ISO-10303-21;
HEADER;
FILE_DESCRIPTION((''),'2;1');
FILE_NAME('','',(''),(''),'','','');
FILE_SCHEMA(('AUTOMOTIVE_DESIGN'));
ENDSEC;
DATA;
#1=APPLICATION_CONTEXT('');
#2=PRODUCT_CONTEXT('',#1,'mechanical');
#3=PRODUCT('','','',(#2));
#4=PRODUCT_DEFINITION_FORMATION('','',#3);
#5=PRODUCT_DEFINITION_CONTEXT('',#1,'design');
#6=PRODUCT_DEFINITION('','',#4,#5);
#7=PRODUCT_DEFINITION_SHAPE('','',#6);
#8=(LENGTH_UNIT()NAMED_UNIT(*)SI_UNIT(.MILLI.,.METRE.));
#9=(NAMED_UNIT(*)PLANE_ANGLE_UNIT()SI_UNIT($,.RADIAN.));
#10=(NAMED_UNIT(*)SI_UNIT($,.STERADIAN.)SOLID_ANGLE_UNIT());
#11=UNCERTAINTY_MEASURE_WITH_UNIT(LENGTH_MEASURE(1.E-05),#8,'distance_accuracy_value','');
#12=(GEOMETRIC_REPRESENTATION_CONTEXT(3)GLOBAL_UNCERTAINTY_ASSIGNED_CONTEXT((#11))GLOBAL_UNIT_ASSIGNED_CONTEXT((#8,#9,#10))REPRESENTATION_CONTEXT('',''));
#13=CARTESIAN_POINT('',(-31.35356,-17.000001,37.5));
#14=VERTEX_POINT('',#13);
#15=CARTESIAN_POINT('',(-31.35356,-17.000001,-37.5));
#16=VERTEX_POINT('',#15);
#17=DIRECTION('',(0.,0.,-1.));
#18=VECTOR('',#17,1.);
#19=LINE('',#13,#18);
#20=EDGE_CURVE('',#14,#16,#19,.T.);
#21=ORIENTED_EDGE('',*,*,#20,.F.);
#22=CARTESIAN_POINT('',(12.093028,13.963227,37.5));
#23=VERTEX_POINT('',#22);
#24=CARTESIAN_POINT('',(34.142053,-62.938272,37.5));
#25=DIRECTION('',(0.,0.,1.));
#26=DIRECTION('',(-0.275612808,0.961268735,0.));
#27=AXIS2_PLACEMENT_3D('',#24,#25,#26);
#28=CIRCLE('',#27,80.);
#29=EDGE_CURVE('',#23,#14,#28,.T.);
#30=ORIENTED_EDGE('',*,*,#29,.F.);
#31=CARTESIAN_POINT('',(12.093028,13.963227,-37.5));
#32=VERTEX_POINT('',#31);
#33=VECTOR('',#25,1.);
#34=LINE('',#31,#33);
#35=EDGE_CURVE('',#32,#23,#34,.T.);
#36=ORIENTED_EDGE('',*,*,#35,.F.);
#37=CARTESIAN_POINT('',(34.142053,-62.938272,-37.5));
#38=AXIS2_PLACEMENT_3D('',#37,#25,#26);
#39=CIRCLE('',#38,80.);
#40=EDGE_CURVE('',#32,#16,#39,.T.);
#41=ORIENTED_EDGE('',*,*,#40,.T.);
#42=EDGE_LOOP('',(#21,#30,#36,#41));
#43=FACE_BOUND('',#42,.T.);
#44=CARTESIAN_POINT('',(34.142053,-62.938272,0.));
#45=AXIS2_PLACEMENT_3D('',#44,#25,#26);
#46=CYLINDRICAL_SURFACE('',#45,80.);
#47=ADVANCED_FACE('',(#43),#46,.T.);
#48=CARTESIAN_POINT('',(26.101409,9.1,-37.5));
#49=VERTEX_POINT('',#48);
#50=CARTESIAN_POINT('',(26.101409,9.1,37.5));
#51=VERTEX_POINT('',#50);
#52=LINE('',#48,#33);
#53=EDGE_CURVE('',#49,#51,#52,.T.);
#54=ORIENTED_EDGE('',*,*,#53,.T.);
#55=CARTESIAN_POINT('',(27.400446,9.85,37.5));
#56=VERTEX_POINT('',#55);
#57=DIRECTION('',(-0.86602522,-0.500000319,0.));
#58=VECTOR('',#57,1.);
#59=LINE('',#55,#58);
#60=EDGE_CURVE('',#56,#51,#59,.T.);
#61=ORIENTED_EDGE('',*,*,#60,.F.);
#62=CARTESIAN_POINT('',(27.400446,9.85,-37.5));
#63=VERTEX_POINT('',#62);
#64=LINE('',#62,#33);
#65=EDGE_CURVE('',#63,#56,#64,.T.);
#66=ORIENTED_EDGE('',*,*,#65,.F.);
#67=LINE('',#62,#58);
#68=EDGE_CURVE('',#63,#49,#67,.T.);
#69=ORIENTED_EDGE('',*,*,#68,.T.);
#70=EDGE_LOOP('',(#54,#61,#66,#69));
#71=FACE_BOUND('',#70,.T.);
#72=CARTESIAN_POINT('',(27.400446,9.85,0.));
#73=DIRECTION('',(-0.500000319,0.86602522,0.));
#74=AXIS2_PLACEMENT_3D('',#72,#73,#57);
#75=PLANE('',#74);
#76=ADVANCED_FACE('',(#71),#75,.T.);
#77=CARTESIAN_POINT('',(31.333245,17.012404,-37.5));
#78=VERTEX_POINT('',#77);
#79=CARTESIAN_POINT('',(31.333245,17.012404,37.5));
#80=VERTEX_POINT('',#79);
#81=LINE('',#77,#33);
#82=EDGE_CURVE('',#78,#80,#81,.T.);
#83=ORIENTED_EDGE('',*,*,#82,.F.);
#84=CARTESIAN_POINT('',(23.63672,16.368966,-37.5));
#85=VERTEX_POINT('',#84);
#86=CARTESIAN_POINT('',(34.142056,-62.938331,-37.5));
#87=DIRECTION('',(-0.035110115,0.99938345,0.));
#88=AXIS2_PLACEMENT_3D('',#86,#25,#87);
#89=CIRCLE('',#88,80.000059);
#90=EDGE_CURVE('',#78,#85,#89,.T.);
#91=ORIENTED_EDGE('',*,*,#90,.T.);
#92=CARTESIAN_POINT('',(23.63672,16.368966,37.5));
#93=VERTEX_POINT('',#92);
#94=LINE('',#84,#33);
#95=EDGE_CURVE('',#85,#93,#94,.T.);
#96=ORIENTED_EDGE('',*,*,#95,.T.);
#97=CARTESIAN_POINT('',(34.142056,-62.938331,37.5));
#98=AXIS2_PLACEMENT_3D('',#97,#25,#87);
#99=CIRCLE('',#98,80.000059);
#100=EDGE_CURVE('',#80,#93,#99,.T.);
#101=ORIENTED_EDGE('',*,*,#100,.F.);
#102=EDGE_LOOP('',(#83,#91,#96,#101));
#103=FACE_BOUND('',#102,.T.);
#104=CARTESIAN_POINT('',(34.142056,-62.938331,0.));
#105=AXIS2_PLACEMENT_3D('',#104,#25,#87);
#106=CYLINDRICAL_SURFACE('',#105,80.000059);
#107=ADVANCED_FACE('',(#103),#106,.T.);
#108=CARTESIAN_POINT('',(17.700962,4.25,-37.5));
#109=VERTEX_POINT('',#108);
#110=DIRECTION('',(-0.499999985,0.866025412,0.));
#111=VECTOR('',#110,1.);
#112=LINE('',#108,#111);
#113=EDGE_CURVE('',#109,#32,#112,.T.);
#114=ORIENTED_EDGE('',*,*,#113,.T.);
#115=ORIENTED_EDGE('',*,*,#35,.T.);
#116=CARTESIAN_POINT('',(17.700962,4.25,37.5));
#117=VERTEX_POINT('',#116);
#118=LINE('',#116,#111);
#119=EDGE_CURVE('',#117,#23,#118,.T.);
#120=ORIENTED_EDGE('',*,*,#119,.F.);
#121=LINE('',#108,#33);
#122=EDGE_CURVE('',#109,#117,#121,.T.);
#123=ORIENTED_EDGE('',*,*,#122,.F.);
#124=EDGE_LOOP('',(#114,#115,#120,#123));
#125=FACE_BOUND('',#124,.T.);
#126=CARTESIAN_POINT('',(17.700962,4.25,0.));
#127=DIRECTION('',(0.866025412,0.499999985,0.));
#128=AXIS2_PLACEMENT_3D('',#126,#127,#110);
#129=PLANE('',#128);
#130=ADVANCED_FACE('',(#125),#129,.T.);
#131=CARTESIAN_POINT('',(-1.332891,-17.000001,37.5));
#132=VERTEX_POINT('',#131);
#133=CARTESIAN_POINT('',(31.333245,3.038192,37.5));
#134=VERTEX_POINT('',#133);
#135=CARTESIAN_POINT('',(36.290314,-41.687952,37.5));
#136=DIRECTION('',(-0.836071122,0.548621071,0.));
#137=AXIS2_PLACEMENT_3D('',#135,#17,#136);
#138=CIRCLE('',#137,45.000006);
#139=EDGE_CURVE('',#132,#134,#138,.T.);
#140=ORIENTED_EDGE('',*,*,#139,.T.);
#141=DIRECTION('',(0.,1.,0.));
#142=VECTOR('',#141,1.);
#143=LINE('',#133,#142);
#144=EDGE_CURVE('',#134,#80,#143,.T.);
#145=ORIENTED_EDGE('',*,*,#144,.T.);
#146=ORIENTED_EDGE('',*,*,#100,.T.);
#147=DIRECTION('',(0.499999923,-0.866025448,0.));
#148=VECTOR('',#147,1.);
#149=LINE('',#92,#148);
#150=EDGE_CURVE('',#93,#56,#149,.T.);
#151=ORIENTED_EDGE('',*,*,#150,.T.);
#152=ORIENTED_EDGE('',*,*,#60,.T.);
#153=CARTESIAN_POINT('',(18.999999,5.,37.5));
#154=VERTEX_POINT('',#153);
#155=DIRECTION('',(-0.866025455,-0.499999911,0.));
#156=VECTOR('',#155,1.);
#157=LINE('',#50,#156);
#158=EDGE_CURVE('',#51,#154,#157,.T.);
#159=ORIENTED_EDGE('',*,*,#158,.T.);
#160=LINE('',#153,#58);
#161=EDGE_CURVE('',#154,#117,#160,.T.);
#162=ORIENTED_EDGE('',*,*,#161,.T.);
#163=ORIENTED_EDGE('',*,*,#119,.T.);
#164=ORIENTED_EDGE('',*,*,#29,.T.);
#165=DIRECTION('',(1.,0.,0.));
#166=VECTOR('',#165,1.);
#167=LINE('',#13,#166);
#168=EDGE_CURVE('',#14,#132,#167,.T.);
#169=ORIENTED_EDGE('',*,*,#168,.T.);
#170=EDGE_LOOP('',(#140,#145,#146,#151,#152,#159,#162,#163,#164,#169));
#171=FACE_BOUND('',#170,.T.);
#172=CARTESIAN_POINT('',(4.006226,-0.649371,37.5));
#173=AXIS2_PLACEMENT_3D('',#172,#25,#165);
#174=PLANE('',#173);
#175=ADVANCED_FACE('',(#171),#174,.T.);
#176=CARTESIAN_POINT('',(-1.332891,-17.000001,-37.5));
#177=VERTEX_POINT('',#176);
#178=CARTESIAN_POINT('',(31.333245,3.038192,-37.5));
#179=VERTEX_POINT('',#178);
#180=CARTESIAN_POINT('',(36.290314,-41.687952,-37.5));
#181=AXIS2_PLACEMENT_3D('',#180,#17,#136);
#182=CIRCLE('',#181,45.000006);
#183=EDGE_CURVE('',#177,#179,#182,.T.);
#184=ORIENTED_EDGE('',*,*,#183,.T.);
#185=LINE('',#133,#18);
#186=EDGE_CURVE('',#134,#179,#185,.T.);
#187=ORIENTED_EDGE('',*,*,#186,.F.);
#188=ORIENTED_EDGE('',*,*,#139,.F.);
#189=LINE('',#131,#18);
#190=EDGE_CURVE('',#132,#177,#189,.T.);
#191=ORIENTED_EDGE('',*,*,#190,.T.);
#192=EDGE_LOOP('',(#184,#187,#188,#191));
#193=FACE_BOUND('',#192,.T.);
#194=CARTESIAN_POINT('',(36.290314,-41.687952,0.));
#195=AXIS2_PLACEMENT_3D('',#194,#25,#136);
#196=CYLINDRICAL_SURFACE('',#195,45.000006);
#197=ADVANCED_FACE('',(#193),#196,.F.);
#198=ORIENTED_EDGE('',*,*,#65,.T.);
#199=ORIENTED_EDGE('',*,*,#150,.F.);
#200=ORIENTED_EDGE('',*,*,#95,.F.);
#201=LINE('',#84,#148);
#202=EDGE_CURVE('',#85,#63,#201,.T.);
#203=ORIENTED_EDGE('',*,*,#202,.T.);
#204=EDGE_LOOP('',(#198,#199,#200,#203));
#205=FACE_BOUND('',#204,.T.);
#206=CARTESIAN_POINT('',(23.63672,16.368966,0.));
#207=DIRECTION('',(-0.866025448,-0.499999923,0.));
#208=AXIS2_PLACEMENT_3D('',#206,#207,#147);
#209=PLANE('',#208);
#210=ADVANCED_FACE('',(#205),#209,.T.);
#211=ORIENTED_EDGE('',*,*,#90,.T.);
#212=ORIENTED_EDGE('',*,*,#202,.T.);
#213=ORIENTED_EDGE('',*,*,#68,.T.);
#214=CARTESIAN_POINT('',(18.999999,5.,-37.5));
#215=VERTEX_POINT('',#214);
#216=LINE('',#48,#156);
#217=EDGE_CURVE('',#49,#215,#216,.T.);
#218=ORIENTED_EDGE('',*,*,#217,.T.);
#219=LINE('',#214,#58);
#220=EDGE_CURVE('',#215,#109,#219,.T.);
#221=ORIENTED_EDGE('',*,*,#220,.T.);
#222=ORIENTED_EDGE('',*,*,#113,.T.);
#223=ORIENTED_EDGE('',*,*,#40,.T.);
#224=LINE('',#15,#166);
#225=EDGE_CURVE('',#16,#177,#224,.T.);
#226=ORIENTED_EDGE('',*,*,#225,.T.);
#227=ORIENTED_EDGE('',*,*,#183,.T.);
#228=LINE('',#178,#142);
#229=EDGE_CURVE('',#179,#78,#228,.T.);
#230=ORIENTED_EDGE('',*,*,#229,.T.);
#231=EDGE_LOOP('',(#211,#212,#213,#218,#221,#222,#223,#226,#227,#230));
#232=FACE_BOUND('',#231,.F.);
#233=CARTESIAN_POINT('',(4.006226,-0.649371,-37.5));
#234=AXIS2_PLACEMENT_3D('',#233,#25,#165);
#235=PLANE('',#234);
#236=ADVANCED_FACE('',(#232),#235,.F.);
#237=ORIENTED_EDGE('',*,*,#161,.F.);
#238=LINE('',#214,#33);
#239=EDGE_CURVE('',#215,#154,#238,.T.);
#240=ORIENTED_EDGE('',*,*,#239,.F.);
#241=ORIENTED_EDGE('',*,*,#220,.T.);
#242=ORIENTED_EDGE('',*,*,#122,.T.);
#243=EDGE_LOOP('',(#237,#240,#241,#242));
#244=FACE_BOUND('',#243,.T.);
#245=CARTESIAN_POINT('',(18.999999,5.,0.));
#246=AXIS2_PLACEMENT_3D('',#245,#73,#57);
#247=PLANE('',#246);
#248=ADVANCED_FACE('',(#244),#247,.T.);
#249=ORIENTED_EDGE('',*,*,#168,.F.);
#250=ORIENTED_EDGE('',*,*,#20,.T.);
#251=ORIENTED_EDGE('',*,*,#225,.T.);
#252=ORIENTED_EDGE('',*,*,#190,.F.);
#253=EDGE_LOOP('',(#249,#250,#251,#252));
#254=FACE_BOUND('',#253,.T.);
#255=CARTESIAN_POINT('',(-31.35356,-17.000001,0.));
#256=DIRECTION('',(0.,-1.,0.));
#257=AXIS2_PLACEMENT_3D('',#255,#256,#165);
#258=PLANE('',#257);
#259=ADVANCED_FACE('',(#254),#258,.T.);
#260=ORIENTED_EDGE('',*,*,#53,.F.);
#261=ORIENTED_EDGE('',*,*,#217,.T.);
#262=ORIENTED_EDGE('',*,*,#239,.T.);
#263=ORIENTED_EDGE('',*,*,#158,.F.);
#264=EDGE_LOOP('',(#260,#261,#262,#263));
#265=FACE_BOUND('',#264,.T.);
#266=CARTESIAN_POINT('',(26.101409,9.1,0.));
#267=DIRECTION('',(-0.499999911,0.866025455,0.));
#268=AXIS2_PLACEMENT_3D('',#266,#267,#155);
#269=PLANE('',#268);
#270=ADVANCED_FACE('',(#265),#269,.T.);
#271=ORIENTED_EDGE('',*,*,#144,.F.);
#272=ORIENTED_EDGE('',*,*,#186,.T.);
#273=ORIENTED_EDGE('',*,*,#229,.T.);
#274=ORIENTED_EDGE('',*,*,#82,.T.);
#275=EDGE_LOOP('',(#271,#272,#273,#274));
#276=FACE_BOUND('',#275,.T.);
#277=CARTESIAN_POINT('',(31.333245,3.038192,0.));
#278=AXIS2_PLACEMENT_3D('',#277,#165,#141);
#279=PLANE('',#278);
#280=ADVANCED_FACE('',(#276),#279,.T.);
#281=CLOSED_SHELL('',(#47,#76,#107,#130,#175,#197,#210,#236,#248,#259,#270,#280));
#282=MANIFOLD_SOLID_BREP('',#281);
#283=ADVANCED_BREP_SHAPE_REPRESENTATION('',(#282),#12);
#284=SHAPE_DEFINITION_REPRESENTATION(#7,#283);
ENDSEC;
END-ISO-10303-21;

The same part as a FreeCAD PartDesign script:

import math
import FreeCAD as App
import Part
import Sketcher

V = App.Vector
Q = App.Units.Quantity

doc = App.newDocument("Part")
body = doc.addObject("PartDesign::Body", "Body")

# Sketch on XY plane
sketch1 = body.newObject("Sketcher::SketchObject", "Sketch")
sketch1.AttachmentSupport = (doc.getObject("XY_Plane"), [""])
sketch1.MapMode = "FlatFace"
sketch1.addGeometry([
    Part.LineSegment(V(31.3, 3, 0), V(31.3, 17, 0)),  # 0
    Part.ArcOfCircle(Part.Circle(V(34.1, -62.9, 0), V(0, 0, 1), 80), math.radians(92.01), math.radians(97.55)),  # 1
    Part.LineSegment(V(23.6, 16.4, 0), V(27.4, 9.8, 0)),  # 2
    Part.LineSegment(V(27.4, 9.8, 0), V(26.1, 9.1, 0)),  # 3
    Part.LineSegment(V(26.1, 9.1, 0), V(19, 5, 0)),  # 4
    Part.LineSegment(V(19, 5, 0), V(17.7, 4.2, 0)),  # 5
    Part.LineSegment(V(17.7, 4.2, 0), V(12.1, 14, 0)),  # 6
    Part.ArcOfCircle(Part.Circle(V(34.1, -62.9, 0), V(0, 0, 1), 80), math.radians(106), math.radians(145)),  # 7
    Part.LineSegment(V(-31.4, -17, 0), V(-1.3, -17, 0)),  # 8
    Part.ArcOfCircle(Part.Circle(V(36.3, -41.7, 0), V(0, 0, 1), 45), math.radians(96), math.radians(147)),  # 9
], False)
sketch1.addConstraint([
    Sketcher.Constraint("Coincident", 0, 2, 1, 1),
    Sketcher.Constraint("Coincident", 1, 2, 2, 1),
    Sketcher.Constraint("Coincident", 2, 2, 3, 1),
    Sketcher.Constraint("Coincident", 3, 2, 4, 1),
    Sketcher.Constraint("Coincident", 4, 2, 5, 1),
    Sketcher.Constraint("Coincident", 5, 2, 6, 1),
    Sketcher.Constraint("Coincident", 6, 2, 7, 1),
    Sketcher.Constraint("Coincident", 7, 2, 8, 1),
    Sketcher.Constraint("Coincident", 8, 2, 9, 2),
    Sketcher.Constraint("Coincident", 9, 1, 0, 1),
    Sketcher.Constraint("Vertical", 0),
    Sketcher.Constraint("Horizontal", 8),
    Sketcher.Constraint("Perpendicular", 2, 3),
    Sketcher.Constraint("Parallel", 3, 4),
    Sketcher.Constraint("Parallel", 4, 5),
    Sketcher.Constraint("Perpendicular", 5, 6),
    Sketcher.Constraint("Equal", 3, 5),
    Sketcher.Constraint("Radius", 7, Q("80 mm")),
    Sketcher.Constraint("Angle", 2, Q("-60.000005 deg")),
    Sketcher.Constraint("DistanceX", -1, 1, 4, 2, Q("18.999999 mm")),
    Sketcher.Constraint("DistanceY", -1, 1, 4, 2, Q("5 mm")),
    Sketcher.Constraint("DistanceY", 7, 2, -1, 1, Q("17.000001 mm")),
    Sketcher.Constraint("Distance", 3, Q("1.499999 mm")),
    Sketcher.Constraint("Distance", 4, Q("8.200001 mm")),
    Sketcher.Constraint("Radius", 1, Q("80.000059 mm")),
    Sketcher.Constraint("Radius", 9, Q("45.000006 mm")),
    Sketcher.Constraint("DistanceX", 8, 1, 8, 2, Q("30.020669 mm")),
    Sketcher.Constraint("DistanceX", 2, 2, 0, 2, Q("3.932799 mm")),
    Sketcher.Constraint("DistanceX", 8, 2, 3, 2, Q("27.4343 mm")),
    Sketcher.Constraint("Distance", 6, Q("11.215868 mm")),
    Sketcher.Constraint("DistanceY", 0, 1, 0, 2, Q("13.974212 mm")),
    Sketcher.Constraint("DistanceY", 1, 3, -1, 1, Q("62.938331 mm")),
    Sketcher.Constraint("DistanceY", -1, 1, 9, 1, Q("3.038192 mm")),
])
pad1 = body.newObject("PartDesign::Pad", "Pad")
pad1.Profile = sketch1
pad1.Length = 75
pad1.Midplane = True

doc.recompute()
